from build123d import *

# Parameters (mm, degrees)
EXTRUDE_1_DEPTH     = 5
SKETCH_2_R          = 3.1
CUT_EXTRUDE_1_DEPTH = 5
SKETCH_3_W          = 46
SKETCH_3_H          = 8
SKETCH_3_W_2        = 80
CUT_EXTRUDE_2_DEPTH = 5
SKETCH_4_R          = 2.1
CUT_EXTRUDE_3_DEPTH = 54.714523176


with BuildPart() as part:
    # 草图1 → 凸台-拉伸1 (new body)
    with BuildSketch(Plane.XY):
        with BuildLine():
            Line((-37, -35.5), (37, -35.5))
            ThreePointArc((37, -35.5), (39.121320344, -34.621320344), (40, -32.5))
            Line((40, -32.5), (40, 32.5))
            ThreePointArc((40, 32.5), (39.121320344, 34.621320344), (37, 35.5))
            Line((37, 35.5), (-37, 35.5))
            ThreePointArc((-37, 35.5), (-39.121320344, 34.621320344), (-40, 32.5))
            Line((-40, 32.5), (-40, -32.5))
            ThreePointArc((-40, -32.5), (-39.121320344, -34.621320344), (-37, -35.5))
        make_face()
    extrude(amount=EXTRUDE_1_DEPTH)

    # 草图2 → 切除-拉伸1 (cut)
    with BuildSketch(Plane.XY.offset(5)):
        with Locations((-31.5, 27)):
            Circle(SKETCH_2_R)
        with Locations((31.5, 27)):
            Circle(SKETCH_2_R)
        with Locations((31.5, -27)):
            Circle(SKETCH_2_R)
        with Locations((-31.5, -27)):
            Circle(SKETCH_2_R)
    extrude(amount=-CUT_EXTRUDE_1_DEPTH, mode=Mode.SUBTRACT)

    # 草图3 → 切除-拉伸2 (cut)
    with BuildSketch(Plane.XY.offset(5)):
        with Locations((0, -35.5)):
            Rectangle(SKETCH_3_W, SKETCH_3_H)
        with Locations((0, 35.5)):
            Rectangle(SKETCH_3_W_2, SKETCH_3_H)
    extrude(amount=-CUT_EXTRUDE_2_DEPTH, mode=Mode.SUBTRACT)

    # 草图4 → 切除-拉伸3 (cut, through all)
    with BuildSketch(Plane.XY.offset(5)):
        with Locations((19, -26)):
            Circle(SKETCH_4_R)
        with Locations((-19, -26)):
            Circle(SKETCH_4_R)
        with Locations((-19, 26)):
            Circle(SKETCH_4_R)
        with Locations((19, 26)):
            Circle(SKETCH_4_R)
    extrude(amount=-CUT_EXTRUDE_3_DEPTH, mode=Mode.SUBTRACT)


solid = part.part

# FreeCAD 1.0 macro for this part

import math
import FreeCAD as App
import Part
import Sketcher

V = App.Vector


def add_polygon(sketch, points):
    """Adds a closed chain of lines whose ends are joined by coincident constraints."""
    first, n = sketch.GeometryCount, len(points)
    for a, b in zip(points, points[1:] + points[:1]):
        sketch.addGeometry(Part.LineSegment(App.Vector(*a, 0), App.Vector(*b, 0)), False)
    for i in range(n):
        sketch.addConstraint(Sketcher.Constraint("Coincident", first + i, 2, first + (i + 1) % n, 1))

doc = App.newDocument("Part")
body = doc.addObject("PartDesign::Body", "Body")

sketch1 = body.newObject("Sketcher::SketchObject", "Sketch")
sketch1.AttachmentSupport = (doc.getObject("XY_Plane"), [""])
sketch1.MapMode = "FlatFace"
sketch1.addGeometry([
    Part.LineSegment(V(-37, -35.5, 0), V(37, -35.5, 0)),
    Part.ArcOfCircle(Part.Circle(V(37, -32.5, 0), V(0, 0, 1), 3), math.radians(-90), math.radians(0)),
    Part.LineSegment(V(40, -32.5, 0), V(40, 32.5, 0)),
    Part.ArcOfCircle(Part.Circle(V(37, 32.5, 0), V(0, 0, 1), 3), math.radians(0), math.radians(90)),
    Part.LineSegment(V(37, 35.5, 0), V(-37, 35.5, 0)),
    Part.ArcOfCircle(Part.Circle(V(-37, 32.5, 0), V(0, 0, 1), 3), math.radians(90), math.radians(180)),
    Part.LineSegment(V(-40, 32.5, 0), V(-40, -32.5, 0)),
    Part.ArcOfCircle(Part.Circle(V(-37, -32.5, 0), V(0, 0, 1), 3), math.radians(180), math.radians(270)),
], False)
sketch1.addConstraint([
    Sketcher.Constraint("Tangent", 0, 2, 1, 1),
    Sketcher.Constraint("Tangent", 1, 2, 2, 1),
    Sketcher.Constraint("Tangent", 2, 2, 3, 1),
    Sketcher.Constraint("Tangent", 3, 2, 4, 1),
    Sketcher.Constraint("Tangent", 4, 2, 5, 1),
    Sketcher.Constraint("Tangent", 5, 2, 6, 1),
    Sketcher.Constraint("Tangent", 6, 2, 7, 1),
    Sketcher.Constraint("Tangent", 7, 2, 0, 1),
    Sketcher.Constraint("Horizontal", 0),
    Sketcher.Constraint("Vertical", 2),
    Sketcher.Constraint("Horizontal", 4),
    Sketcher.Constraint("Vertical", 6),
    Sketcher.Constraint("Equal", 1, 3),
    Sketcher.Constraint("Equal", 3, 5),
    Sketcher.Constraint("Equal", 5, 7),
    Sketcher.Constraint("Symmetric", 1, 3, 5, 3, -1, 1),
    Sketcher.Constraint("Radius", 1, 3.0),
    Sketcher.Constraint("DistanceX", 0, 1, 0, 2, 74.0),
    Sketcher.Constraint("DistanceY", 2, 1, 2, 2, 65.0),
])
pad1 = body.newObject("PartDesign::Pad", "Pad")
pad1.Profile = sketch1
pad1.Length = 5

sketch2 = body.newObject("Sketcher::SketchObject", "Sketch001")
sketch2.AttachmentSupport = (doc.getObject("XY_Plane"), [""])
sketch2.MapMode = "FlatFace"
sketch2.AttachmentOffset = App.Placement(V(0, 0, 5), App.Rotation())
sketch2.addGeometry([
    Part.Circle(V(-31.5, 27, 0), V(0, 0, 1), 3.1),
    Part.Circle(V(31.5, 27, 0), V(0, 0, 1), 3.1),
    Part.Circle(V(31.5, -27, 0), V(0, 0, 1), 3.1),
    Part.Circle(V(-31.5, -27, 0), V(0, 0, 1), 3.1),
], False)
sketch2.addConstraint([
    Sketcher.Constraint("Equal", 0, 1),
    Sketcher.Constraint("Equal", 1, 2),
    Sketcher.Constraint("Equal", 2, 3),
    Sketcher.Constraint("Symmetric", 0, 3, 2, 3, -1, 1),
    Sketcher.Constraint("Symmetric", 1, 3, 3, 3, -1, 1),
    Sketcher.Constraint("Symmetric", 0, 3, 1, 3, -2),
    Sketcher.Constraint("Diameter", 0, 6.2),
    Sketcher.Constraint("DistanceY", -1, 1, 0, 3, 27.0),
    Sketcher.Constraint("DistanceX", 0, 3, 1, 3, 63.0),
])
pocket1 = body.newObject("PartDesign::Pocket", "Pocket")
pocket1.Profile = sketch2
pocket1.Length = 5

sketch3 = body.newObject("Sketcher::SketchObject", "Sketch002")
sketch3.AttachmentSupport = (doc.getObject("XY_Plane"), [""])
sketch3.MapMode = "FlatFace"
sketch3.AttachmentOffset = App.Placement(V(0, 0, 5), App.Rotation())
add_polygon(sketch3, [(-23, -32), (-23, -40), (23, -40), (23, -32)])
add_polygon(sketch3, [(-40, 40), (-40, 32), (40, 32), (40, 40)])
sketch3.addConstraint([
    Sketcher.Constraint("Vertical", 0),
    Sketcher.Constraint("Horizontal", 1),
    Sketcher.Constraint("Vertical", 2),
    Sketcher.Constraint("Horizontal", 3),
    Sketcher.Constraint("Vertical", 4),
    Sketcher.Constraint("Horizontal", 5),
    Sketcher.Constraint("Vertical", 6),
    Sketcher.Constraint("Horizontal", 7),
    Sketcher.Constraint("Equal", 2, 4),
    Sketcher.Constraint("DistanceX", 1, 1, 1, 2, 46.0),
    Sketcher.Constraint("DistanceX", 5, 1, 5, 2, 80.0),
    Sketcher.Constraint("DistanceY", 0, 2, 0, 1, 8.0),
    Sketcher.Constraint("DistanceX", 0, 2, -1, 1, 23.0),
    Sketcher.Constraint("DistanceX", 4, 2, -1, 1, 40.0),
    Sketcher.Constraint("DistanceY", 3, 2, 4, 2, 63.0),
    Sketcher.Constraint("DistanceY", 0, 2, -1, 1, 39.5),
])
pocket2 = body.newObject("PartDesign::Pocket", "Pocket001")
pocket2.Profile = sketch3
pocket2.Length = 5

sketch4 = body.newObject("Sketcher::SketchObject", "Sketch003")
sketch4.AttachmentSupport = (doc.getObject("XY_Plane"), [""])
sketch4.MapMode = "FlatFace"
sketch4.AttachmentOffset = App.Placement(V(0, 0, 5), App.Rotation())
sketch4.addGeometry([
    Part.Circle(V(19, -26, 0), V(0, 0, 1), 2.1),
    Part.Circle(V(-19, -26, 0), V(0, 0, 1), 2.1),
    Part.Circle(V(-19, 26, 0), V(0, 0, 1), 2.1),
    Part.Circle(V(19, 26, 0), V(0, 0, 1), 2.1),
], False)
sketch4.addConstraint([
    Sketcher.Constraint("Equal", 0, 1),
    Sketcher.Constraint("Equal", 1, 2),
    Sketcher.Constraint("Equal", 2, 3),
    Sketcher.Constraint("Symmetric", 0, 3, 2, 3, -1, 1),
    Sketcher.Constraint("Symmetric", 1, 3, 3, 3, -1, 1),
    Sketcher.Constraint("Symmetric", 0, 3, 1, 3, -2),
    Sketcher.Constraint("Diameter", 0, 4.2),
    Sketcher.Constraint("DistanceX", -1, 1, 0, 3, 19.0),
    Sketcher.Constraint("DistanceY", 0, 3, -1, 1, 26.0),
])
pocket3 = body.newObject("PartDesign::Pocket", "Pocket002")
pocket3.Profile = sketch4
pocket3.Type = "ThroughAll"

doc.recompute()
